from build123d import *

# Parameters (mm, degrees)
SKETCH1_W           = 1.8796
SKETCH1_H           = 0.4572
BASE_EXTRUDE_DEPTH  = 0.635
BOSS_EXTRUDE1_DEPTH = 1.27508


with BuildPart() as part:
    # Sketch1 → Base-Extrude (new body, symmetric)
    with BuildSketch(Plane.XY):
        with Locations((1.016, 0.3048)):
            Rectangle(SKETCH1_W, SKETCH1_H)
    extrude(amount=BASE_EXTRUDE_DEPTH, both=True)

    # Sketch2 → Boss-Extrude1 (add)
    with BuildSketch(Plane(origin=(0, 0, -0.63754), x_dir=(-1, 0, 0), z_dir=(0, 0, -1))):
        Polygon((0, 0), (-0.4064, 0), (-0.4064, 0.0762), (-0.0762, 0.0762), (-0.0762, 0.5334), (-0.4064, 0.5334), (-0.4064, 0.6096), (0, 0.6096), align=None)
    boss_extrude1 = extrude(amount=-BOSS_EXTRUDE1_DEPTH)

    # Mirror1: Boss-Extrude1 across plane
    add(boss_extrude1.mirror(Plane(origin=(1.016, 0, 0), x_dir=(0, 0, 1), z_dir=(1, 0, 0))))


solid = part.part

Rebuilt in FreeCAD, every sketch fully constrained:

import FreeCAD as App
import Part
import Sketcher
Q = App.Units.Quantity


def add_polygon(sketch, points):
    """Adds a closed chain of lines whose ends are joined by coincident constraints."""
    first, n = sketch.GeometryCount, len(points)
    for a, b in zip(points, points[1:] + points[:1]):
        sketch.addGeometry(Part.LineSegment(App.Vector(*a, 0), App.Vector(*b, 0)), False)
    for i in range(n):
        sketch.addConstraint(Sketcher.Constraint("Coincident", first + i, 2, first + (i + 1) % n, 1))

doc = App.newDocument("Part")
body = doc.addObject("PartDesign::Body", "Body")

# Sketch on XY plane
sketch1 = body.newObject("Sketcher::SketchObject", "Sketch")
sketch1.AttachmentSupport = (doc.getObject("XY_Plane"), [""])
sketch1.MapMode = "FlatFace"
add_polygon(sketch1, [(0.08, 0.53), (0.08, 0.08), (1.96, 0.08), (1.96, 0.53)])  # lines 0-3
sketch1.addConstraint([
    Sketcher.Constraint("Vertical", 0),
    Sketcher.Constraint("Horizontal", 1),
    Sketcher.Constraint("Vertical", 2),
    Sketcher.Constraint("Horizontal", 3),
    Sketcher.Constraint("DistanceX", 1, 1, 1, 2, Q("0.074 in")),
    Sketcher.Constraint("DistanceY", 0, 2, 0, 1, Q("0.018 in")),
    Sketcher.Constraint("DistanceX", -1, 1, 0, 2, Q("0.003 in")),
    Sketcher.Constraint("DistanceY", -1, 1, 0, 2, Q("0.003 in")),
])
pad1 = body.newObject("PartDesign::Pad", "Pad")
pad1.Profile = sketch1
pad1.Length = Q("0.05 in")
pad1.Midplane = True

# Sketch on XY plane
sketch2 = body.newObject("Sketcher::SketchObject", "Sketch001")
sketch2.AttachmentSupport = (doc.getObject("XY_Plane"), [""])
sketch2.MapMode = "FlatFace"
sketch2.AttachmentOffset = App.Placement(App.Vector(0, 0, -0.0251 * 25.4), App.Rotation())
add_polygon(sketch2, [(0.41, 0), (0, 0), (0, 0.61), (0.41, 0.61), (0.41, 0.53), (0.08, 0.53), (0.08, 0.08), (0.41, 0.08)])  # lines 0-7
sketch2.addConstraint([
    Sketcher.Constraint("Horizontal", 0),
    Sketcher.Constraint("Vertical", 1),
    Sketcher.Constraint("Horizontal", 2),
    Sketcher.Constraint("Vertical", 3),
    Sketcher.Constraint("Horizontal", 4),
    Sketcher.Constraint("Vertical", 5),
    Sketcher.Constraint("Horizontal", 6),
    Sketcher.Constraint("Vertical", 7),
    Sketcher.Constraint("Coincident", 0, 2, -1, 1),
    Sketcher.Constraint("Vertical", 3, 2, 6, 2),
    Sketcher.Constraint("Equal", 3, 7),
    Sketcher.Constraint("DistanceX", 0, 2, 0, 1, Q("0.016 in")),
    Sketcher.Constraint("DistanceX", 4, 2, 4, 1, Q("0.013 in")),
    Sketcher.Constraint("DistanceY", 1, 1, 1, 2, Q("0.024 in")),
    Sketcher.Constraint("DistanceY", 3, 2, 3, 1, Q("0.003 in")),
])
pad2 = body.newObject("PartDesign::Pad", "Pad001")
pad2.Profile = sketch2
pad2.Length = Q("0.0502 in")
doc.recompute()

datumplane = body.newObject("PartDesign::Plane", "DatumPlane")
datumplane.AttachmentSupport = (doc.getObject("YZ_Plane"), [""])
datumplane.MapMode = "FlatFace"
datumplane.AttachmentOffset = App.Placement(App.Vector(0, 0, 0.04 * 25.4), App.Rotation())
mirrored = body.newObject("PartDesign::Mirrored", "Mirrored")
mirrored.Originals = [pad2]
mirrored.MirrorPlane = (datumplane, [""])
body.Tip = mirrored

doc.recompute()
